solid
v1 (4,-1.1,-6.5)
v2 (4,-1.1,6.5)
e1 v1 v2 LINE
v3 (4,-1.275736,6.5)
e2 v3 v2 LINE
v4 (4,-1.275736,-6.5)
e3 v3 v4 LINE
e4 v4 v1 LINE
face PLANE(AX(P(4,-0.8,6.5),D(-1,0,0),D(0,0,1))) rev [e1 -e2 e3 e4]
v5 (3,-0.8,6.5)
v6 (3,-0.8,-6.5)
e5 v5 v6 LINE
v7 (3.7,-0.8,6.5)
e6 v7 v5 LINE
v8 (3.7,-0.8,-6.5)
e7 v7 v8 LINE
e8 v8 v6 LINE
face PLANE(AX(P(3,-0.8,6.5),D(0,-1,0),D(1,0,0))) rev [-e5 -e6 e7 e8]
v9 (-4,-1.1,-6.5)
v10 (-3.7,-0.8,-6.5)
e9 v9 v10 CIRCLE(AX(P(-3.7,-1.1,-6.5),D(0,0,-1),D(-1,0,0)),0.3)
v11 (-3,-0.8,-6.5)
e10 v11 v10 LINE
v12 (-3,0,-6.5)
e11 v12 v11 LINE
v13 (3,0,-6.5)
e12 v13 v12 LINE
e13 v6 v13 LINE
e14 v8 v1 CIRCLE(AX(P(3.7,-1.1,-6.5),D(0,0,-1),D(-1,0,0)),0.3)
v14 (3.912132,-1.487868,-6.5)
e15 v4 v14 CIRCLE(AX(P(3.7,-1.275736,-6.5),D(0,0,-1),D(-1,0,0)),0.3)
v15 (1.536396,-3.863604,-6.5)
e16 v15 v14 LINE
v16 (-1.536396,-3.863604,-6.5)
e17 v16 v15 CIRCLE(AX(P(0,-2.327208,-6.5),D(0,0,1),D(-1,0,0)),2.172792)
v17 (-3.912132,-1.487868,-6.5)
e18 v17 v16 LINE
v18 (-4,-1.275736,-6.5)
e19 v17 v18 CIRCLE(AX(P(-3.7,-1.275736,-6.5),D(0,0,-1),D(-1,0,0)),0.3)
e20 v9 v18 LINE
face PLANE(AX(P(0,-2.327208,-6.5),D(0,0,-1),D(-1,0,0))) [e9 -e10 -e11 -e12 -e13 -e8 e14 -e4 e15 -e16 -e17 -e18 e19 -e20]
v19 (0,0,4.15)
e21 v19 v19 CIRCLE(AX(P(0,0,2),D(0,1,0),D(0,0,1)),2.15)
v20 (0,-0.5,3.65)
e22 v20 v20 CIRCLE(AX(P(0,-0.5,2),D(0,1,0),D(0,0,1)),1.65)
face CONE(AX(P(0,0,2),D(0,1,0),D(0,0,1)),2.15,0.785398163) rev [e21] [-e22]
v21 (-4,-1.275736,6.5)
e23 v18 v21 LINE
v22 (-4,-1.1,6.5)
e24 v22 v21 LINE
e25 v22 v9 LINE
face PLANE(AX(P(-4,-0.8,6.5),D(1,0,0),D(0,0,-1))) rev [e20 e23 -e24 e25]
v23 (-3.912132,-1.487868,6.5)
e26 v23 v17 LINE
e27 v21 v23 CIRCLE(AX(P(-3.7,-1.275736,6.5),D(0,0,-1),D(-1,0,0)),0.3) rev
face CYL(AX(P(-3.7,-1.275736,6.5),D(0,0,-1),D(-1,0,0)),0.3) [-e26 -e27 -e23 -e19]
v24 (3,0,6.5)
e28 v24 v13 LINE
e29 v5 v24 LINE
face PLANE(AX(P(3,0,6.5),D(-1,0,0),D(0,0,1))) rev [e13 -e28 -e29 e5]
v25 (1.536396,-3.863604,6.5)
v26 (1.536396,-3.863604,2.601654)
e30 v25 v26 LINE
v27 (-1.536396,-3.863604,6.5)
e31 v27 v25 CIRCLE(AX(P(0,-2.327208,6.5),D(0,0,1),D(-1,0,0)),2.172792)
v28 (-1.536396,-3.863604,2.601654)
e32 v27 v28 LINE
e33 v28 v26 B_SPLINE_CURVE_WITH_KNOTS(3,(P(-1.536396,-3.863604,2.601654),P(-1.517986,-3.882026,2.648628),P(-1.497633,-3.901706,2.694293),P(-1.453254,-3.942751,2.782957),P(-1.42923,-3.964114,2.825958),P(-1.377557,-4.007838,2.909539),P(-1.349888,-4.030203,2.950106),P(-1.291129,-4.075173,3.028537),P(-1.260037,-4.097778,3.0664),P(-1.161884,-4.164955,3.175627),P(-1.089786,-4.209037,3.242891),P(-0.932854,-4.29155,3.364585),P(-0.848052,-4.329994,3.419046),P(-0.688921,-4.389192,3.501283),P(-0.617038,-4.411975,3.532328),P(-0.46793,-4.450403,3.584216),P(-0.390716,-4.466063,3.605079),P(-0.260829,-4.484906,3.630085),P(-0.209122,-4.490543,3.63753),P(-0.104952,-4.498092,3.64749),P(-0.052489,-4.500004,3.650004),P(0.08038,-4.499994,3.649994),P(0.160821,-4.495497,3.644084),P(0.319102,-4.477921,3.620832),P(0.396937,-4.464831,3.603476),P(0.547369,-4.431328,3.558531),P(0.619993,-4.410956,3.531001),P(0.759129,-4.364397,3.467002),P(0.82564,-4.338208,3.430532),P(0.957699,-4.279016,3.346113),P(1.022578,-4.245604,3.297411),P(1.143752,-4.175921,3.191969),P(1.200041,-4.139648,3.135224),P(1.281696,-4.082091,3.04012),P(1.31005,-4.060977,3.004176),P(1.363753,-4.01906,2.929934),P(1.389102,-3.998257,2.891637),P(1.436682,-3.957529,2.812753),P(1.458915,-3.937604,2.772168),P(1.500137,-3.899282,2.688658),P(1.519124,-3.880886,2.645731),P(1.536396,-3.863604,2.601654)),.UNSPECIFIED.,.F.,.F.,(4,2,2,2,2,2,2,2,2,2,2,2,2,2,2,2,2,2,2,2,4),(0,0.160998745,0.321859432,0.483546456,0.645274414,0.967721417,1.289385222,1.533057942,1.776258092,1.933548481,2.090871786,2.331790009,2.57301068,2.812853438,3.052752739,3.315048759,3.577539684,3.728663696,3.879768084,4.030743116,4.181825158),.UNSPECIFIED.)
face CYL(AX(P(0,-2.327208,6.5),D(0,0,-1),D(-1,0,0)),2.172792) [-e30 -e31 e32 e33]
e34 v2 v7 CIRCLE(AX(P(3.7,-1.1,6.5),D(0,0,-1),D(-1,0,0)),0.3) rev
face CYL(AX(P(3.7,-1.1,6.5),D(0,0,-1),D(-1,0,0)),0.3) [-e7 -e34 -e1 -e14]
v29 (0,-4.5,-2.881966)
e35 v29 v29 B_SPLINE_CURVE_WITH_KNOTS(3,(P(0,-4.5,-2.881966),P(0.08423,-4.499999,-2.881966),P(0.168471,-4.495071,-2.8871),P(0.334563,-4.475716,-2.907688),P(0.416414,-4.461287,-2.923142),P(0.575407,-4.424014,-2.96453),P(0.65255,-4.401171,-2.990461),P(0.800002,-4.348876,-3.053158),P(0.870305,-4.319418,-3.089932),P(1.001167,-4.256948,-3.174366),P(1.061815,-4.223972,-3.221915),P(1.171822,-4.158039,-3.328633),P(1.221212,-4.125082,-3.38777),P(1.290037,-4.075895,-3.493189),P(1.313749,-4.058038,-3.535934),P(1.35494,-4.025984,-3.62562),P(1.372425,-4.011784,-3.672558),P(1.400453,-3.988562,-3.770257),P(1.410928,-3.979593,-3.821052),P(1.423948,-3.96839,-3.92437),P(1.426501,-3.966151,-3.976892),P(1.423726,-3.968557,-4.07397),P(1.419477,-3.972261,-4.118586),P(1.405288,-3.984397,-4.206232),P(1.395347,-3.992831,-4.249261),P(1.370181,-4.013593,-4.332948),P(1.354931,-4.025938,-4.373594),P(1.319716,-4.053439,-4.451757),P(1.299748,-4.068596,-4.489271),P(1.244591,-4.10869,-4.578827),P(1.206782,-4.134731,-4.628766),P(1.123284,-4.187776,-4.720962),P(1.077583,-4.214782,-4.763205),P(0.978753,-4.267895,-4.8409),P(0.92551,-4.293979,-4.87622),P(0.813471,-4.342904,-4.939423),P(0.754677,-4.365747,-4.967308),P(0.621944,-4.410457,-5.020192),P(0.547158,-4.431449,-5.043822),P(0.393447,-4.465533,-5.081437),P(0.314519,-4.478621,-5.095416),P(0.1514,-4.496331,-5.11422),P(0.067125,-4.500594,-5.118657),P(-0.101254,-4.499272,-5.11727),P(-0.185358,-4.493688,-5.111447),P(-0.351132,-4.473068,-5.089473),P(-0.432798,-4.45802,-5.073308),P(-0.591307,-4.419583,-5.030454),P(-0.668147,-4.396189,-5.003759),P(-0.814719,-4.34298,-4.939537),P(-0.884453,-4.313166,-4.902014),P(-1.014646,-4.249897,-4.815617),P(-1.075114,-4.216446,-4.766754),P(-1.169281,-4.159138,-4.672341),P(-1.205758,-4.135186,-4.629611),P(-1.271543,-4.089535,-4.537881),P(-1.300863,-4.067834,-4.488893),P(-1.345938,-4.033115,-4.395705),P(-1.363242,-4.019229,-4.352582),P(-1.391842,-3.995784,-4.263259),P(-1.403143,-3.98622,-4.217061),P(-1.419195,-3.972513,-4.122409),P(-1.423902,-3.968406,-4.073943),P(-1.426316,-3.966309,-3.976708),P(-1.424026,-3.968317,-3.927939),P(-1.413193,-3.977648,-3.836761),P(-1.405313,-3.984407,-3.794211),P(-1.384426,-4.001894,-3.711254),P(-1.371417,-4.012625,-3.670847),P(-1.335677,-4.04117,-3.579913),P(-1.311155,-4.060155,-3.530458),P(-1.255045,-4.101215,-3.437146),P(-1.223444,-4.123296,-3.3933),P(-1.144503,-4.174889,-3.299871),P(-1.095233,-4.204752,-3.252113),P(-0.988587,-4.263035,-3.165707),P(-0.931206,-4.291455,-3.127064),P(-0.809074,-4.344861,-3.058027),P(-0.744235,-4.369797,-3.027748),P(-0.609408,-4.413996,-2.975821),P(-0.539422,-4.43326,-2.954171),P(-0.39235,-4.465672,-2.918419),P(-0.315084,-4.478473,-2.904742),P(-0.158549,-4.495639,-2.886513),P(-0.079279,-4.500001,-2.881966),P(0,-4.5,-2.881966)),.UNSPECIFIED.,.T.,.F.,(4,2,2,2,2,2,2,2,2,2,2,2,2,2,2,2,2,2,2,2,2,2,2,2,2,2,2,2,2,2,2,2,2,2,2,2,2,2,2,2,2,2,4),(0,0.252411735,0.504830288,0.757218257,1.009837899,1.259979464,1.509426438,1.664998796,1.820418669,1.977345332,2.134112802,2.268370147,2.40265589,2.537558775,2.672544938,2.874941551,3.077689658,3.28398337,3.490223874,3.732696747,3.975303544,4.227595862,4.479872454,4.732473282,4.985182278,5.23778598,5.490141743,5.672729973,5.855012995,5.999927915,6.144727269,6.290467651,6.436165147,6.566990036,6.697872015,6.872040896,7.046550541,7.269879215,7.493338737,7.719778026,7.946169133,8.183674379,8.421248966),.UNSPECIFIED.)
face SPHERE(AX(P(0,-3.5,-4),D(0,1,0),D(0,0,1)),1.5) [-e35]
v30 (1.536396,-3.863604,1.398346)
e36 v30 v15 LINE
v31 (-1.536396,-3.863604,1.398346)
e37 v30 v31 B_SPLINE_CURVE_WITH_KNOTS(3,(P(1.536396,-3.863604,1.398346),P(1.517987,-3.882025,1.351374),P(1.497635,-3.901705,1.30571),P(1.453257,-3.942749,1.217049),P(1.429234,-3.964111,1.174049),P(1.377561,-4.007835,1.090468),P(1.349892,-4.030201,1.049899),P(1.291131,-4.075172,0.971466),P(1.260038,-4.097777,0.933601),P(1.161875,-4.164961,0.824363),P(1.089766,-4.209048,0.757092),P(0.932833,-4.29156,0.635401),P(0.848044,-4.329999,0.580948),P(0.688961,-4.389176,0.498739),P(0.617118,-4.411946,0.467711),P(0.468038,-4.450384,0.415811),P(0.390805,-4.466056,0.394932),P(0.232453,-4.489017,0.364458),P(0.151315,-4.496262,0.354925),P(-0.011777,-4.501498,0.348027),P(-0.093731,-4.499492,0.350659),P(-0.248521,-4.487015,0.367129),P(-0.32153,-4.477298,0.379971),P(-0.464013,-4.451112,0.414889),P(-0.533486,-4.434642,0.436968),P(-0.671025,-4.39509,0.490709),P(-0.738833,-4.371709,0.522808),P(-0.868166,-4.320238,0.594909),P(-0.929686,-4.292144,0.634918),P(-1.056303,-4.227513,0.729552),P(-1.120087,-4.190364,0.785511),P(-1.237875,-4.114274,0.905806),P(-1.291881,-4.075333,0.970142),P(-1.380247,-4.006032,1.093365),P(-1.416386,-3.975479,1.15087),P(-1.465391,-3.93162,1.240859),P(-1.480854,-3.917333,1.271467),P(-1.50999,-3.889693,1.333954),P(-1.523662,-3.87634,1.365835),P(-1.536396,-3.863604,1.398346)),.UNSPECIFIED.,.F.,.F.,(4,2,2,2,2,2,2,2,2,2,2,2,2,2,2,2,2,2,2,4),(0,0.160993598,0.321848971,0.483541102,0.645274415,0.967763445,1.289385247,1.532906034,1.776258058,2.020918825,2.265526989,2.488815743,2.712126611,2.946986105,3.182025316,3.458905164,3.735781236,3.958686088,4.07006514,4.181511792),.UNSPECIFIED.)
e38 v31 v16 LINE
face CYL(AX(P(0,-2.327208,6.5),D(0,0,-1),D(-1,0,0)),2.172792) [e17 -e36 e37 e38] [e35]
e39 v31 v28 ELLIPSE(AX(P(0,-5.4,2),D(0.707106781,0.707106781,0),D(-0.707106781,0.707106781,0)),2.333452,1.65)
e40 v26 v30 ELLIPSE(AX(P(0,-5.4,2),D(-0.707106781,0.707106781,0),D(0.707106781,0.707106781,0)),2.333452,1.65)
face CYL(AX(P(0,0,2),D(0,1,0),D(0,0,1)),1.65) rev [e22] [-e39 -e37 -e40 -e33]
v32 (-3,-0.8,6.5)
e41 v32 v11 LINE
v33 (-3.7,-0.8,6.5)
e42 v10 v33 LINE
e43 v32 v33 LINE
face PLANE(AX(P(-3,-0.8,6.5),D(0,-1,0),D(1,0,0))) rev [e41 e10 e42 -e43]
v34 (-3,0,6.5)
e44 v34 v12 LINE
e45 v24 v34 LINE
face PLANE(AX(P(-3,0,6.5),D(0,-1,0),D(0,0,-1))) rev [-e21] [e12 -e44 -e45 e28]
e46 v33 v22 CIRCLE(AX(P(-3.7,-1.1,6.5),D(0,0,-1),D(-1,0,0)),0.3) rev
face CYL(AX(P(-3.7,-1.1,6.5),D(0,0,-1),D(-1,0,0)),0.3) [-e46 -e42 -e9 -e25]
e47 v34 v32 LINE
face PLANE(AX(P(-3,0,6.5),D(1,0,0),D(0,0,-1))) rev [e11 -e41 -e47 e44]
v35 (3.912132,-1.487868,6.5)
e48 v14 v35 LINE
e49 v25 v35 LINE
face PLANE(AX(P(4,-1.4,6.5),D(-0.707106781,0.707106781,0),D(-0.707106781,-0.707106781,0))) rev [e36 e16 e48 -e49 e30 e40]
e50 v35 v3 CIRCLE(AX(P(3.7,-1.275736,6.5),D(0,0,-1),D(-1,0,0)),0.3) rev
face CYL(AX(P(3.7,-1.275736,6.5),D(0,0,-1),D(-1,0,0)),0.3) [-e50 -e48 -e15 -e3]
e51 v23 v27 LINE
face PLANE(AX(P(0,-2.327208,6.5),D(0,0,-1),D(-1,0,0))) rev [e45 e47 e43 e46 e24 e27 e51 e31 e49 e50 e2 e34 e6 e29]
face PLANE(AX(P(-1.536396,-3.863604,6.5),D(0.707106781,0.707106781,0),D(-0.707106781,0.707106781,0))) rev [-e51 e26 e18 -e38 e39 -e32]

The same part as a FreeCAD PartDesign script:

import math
import FreeCAD as App
import Part
import Sketcher

V = App.Vector
Q = App.Units.Quantity


def edges_at(feature, points):
    """Names of the edges that pass closest to the given points."""
    edges = feature.Shape.Edges
    near = lambda p: min(range(len(edges)), key=lambda i: edges[i].distToShape(Part.Vertex(*p))[0])
    return sorted({f"Edge{near(p) + 1}" for p in points})

doc = App.newDocument("Part")
params = doc.addObject("Spreadsheet::Sheet", "Params")
for row, (alias, value) in enumerate([
    ("sketch1_width", "6 mm"),
    ("sketch1_width2", "1 mm"),
    ("sketch1_height", "0.8 mm"),
    ("sketch1_height2", "0.6 mm"),
    ("pad1_length", "13 mm"),
    ("sketch2_diameter", "3.3 mm"),
    ("hole_diameter", "3.3 mm"),
    ("hole_csink_diameter", "4.3 mm"),
    ("sketch3_radius", "1.5 mm"),
    ("revolution_angle", "360 deg"),
    ("fillet_radius", "0.3 mm"),
], start=1):
    params.set(f"A{row}", alias)
    params.set(f"B{row}", "=" + value)
    params.setAlias(f"B{row}", alias)

body = doc.addObject("PartDesign::Body", "Body")

sketch1 = body.newObject("Sketcher::SketchObject", "Sketch")
sketch1.AttachmentSupport = (doc.getObject("XY_Plane"), [""])
sketch1.MapMode = "FlatFace"
sketch1.addGeometry([
    Part.LineSegment(V(3, 0, 0), V(-3, 0, 0)),
    Part.LineSegment(V(-3, 0, 0), V(-3, -0.8, 0)),
    Part.LineSegment(V(-3, -0.8, 0), V(-4, -0.8, 0)),
    Part.LineSegment(V(-4, -0.8, 0), V(-4, -1.4, 0)),
    Part.LineSegment(V(-4, -1.4, 0), V(-1.536396, -3.863604, 0)),
    Part.ArcOfCircle(Part.Circle(V(0, -2.327208, 0), V(0, 0, 1), 2.172792), math.radians(-135), math.radians(-45)),
    Part.LineSegment(V(1.536396, -3.863604, 0), V(4, -1.4, 0)),
    Part.LineSegment(V(4, -1.4, 0), V(4, -0.8, 0)),
    Part.LineSegment(V(4, -0.8, 0), V(3, -0.8, 0)),
    Part.LineSegment(V(3, -0.8, 0), V(3, 0, 0)),
], False)
sketch1.addConstraint([
    Sketcher.Constraint("Coincident", 0, 2, 1, 1),
    Sketcher.Constraint("Coincident", 1, 2, 2, 1),
    Sketcher.Constraint("Coincident", 2, 2, 3, 1),
    Sketcher.Constraint("Coincident", 3, 2, 4, 1),
    Sketcher.Constraint("Tangent", 4, 2, 5, 1),
    Sketcher.Constraint("Tangent", 5, 2, 6, 1),
    Sketcher.Constraint("Coincident", 6, 2, 7, 1),
    Sketcher.Constraint("Coincident", 7, 2, 8, 1),
    Sketcher.Constraint("Coincident", 8, 2, 9, 1),
    Sketcher.Constraint("Coincident", 9, 2, 0, 1),
    Sketcher.Constraint("Horizontal", 0),
    Sketcher.Constraint("Vertical", 1),
    Sketcher.Constraint("Horizontal", 2),
    Sketcher.Constraint("Vertical", 3),
    Sketcher.Constraint("Vertical", 7),
    Sketcher.Constraint("Horizontal", 8),
    Sketcher.Constraint("Vertical", 9),
    Sketcher.Constraint("Symmetric", 0, 2, 9, 2, -1, 1),
    Sketcher.Constraint("Symmetric", 4, 2, 5, 2, -2),
    Sketcher.Constraint("Symmetric", 2, 2, 7, 2, -2),
    Sketcher.Constraint("Perpendicular", 4, 6),
    Sketcher.Constraint("DistanceX", 0, 2, 0, 1, Q("6 mm")),
    Sketcher.Constraint("DistanceX", 2, 2, 2, 1, Q("1 mm")),
    Sketcher.Constraint("DistanceY", 1, 2, 1, 1, Q("0.8 mm")),
    Sketcher.Constraint("DistanceY", 3, 2, 3, 1, Q("0.6 mm")),
    Sketcher.Constraint("Radius", 5, Q("2.172792 mm")),
])
sketch1.setExpression("Constraints[21]", "Params.sketch1_width")
sketch1.setExpression("Constraints[22]", "Params.sketch1_width2")
sketch1.setExpression("Constraints[23]", "Params.sketch1_height")
sketch1.setExpression("Constraints[24]", "Params.sketch1_height2")
pad1 = body.newObject("PartDesign::Pad", "Pad")
pad1.Profile = sketch1
pad1.setExpression("Length", "Params.pad1_length")
pad1.Midplane = True

sketch2 = body.newObject("Sketcher::SketchObject", "Sketch001")
sketch2.AttachmentSupport = (doc.getObject("XZ_Plane"), [""])
sketch2.MapMode = "FlatFace"
sketch2.addGeometry(Part.Circle(V(0, 2, 0), V(0, 0, 1), 1.65), False)
sketch2.addConstraint([
    Sketcher.Constraint("PointOnObject", 0, 3, -2),
    Sketcher.Constraint("Diameter", 0, Q("3.3 mm")),
    Sketcher.Constraint("DistanceY", -1, 1, 0, 3, Q("2 mm")),
])
sketch2.setExpression("Constraints[1]", "Params.sketch2_diameter")
doc.recompute()
hole = body.newObject("PartDesign::Hole", "Hole")
hole.Profile = sketch2
hole.ThreadType = "None"
hole.setExpression("Diameter", "Params.hole_diameter")
hole.DepthType = "ThroughAll"
hole.HoleCutType = "Countersink"
hole.setExpression("HoleCutDiameter", "Params.hole_csink_diameter")
hole.HoleCutCountersinkAngle = 90
hole.Reversed = True

sketch3 = body.newObject("Sketcher::SketchObject", "Sketch002")
sketch3.AttachmentSupport = (doc.getObject("YZ_Plane"), [""])
sketch3.MapMode = "FlatFace"
sketch3.addGeometry([
    Part.LineSegment(V(-5, -4, 0), V(-2, -4, 0)),
    Part.ArcOfCircle(Part.Circle(V(-3.5, -4, 0), V(0, 0, 1), 1.5), math.radians(0), math.radians(180)),
], False)
sketch3.addGeometry(Part.LineSegment(V(-2, -4, 0), V(-5, -4, 0)), True)
sketch3.addConstraint([
    Sketcher.Constraint("Coincident", 0, 1, 1, 2),
    Sketcher.Constraint("Coincident", 1, 1, 0, 2),
    Sketcher.Constraint("Horizontal", 0),
    Sketcher.Constraint("Horizontal", 2),
    Sketcher.Constraint("Coincident", 2, 1, 1, 1),
    Sketcher.Constraint("Horizontal", 1, 3, 0, 1),
    Sketcher.Constraint("Equal", 0, 2),
    Sketcher.Constraint("Radius", 1, Q("1.5 mm")),
    Sketcher.Constraint("DistanceY", 1, 3, -1, 1, Q("4 mm")),
    Sketcher.Constraint("DistanceX", 0, 1, -1, 1, Q("5 mm")),
])
sketch3.setExpression("Constraints[7]", "Params.sketch3_radius")
revolution = body.newObject("PartDesign::Revolution", "Revolution")
revolution.Profile = sketch3
revolution.ReferenceAxis = (sketch3, ["Axis0"])
revolution.setExpression("Angle", "Params.revolution_angle")
doc.recompute()

fillet = body.newObject("PartDesign::Fillet", "Fillet")
fillet.Base = (revolution, edges_at(revolution, [
    (4, -0.8, 0),
    (4, -1.4, 0),
    (-4, -1.4, 0),
    (-4, -0.8, 0),
]))
fillet.setExpression("Radius", "Params.fillet_radius")

doc.recompute()
